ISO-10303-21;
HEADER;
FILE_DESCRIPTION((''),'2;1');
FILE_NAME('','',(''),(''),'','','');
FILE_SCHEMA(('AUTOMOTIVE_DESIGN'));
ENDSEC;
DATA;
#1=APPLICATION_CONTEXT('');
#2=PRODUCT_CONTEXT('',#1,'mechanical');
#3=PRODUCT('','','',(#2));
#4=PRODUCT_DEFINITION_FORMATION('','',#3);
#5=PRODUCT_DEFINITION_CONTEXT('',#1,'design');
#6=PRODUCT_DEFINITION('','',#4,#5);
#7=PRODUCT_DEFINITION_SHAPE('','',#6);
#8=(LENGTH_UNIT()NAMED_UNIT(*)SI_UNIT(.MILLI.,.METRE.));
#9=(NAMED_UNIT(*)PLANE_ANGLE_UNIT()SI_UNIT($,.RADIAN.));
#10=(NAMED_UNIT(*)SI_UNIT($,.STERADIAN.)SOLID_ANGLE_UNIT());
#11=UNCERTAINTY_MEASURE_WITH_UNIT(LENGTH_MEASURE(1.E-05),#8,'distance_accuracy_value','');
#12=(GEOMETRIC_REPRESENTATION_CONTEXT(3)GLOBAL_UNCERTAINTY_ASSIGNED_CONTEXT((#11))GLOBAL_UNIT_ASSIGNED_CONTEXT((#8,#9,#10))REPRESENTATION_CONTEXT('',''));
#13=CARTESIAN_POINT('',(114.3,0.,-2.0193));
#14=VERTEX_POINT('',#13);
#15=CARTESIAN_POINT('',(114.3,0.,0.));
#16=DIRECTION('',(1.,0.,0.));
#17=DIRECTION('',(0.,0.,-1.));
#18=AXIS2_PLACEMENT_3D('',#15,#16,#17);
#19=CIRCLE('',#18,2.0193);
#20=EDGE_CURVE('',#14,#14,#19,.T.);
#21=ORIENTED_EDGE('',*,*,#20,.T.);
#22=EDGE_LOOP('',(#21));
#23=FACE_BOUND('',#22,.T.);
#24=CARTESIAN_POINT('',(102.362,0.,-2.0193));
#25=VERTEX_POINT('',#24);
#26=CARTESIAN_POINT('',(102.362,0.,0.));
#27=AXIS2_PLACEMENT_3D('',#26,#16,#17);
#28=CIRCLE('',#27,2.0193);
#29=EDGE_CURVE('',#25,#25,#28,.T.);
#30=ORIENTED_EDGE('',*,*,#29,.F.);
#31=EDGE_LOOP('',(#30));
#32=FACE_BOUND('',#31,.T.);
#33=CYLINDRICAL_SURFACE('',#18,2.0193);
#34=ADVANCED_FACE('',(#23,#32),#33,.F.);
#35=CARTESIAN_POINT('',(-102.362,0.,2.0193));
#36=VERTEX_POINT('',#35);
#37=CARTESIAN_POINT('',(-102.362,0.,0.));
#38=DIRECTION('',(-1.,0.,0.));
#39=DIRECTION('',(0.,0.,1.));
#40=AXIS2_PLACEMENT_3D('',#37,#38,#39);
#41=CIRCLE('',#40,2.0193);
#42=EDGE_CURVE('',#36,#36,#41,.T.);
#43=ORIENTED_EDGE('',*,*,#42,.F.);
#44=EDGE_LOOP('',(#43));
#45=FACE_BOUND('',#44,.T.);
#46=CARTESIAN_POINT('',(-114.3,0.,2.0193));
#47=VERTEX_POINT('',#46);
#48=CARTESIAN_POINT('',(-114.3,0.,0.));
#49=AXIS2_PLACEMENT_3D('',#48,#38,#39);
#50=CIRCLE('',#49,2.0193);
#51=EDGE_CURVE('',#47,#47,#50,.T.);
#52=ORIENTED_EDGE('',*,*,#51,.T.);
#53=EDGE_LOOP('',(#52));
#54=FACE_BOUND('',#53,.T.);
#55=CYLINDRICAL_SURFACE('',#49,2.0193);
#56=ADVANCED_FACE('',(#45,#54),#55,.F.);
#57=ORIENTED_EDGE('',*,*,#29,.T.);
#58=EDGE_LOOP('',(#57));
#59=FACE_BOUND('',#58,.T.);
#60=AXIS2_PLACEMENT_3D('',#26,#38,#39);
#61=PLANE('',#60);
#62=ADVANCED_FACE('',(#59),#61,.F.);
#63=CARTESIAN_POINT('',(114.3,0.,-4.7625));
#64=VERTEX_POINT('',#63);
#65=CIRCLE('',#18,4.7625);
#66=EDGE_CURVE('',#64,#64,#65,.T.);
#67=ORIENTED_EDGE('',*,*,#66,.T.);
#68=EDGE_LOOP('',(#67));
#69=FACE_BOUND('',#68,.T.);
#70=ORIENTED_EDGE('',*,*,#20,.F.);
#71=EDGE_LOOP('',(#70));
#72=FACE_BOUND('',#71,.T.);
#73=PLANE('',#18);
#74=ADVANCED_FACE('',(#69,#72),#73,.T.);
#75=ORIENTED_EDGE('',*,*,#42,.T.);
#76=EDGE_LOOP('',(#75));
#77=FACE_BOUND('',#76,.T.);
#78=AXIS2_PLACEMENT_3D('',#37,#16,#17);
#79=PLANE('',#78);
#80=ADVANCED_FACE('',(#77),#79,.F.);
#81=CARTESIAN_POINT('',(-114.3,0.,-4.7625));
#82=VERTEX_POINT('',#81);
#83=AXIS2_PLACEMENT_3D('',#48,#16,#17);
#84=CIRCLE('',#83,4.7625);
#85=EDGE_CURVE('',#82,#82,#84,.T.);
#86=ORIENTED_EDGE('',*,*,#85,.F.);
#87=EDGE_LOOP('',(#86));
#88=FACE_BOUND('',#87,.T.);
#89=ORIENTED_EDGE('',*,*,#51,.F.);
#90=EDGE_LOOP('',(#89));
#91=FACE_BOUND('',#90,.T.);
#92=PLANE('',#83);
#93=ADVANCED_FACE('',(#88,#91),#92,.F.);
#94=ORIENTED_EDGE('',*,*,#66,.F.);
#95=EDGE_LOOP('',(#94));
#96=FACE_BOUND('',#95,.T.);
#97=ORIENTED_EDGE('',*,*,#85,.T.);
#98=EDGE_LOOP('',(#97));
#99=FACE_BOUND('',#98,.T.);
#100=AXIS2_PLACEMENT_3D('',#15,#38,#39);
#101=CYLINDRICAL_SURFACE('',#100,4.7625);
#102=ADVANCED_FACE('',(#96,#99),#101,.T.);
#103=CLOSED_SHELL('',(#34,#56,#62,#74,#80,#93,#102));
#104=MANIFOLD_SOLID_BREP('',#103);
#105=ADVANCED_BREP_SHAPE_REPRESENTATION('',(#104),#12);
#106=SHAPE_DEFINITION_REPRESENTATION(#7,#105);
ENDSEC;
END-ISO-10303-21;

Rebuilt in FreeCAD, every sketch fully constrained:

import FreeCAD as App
import Part
import Sketcher

V = App.Vector
Q = App.Units.Quantity

doc = App.newDocument("Part")
body = doc.addObject("PartDesign::Body", "Body")

# Sketch on YZ plane
sketch1 = doc.addObject("Sketcher::SketchObject", "Sketch")
body.addObject(sketch1)
sketch1.AttachmentSupport = (doc.YZ_Plane, [""])
sketch1.MapMode = "FlatFace"
sketch1.addGeometry(Part.Circle(V(0, 0, 0), V(0, 0, 1), 4.7625), False)
sketch1.addConstraint([
    Sketcher.Constraint("Coincident", 0, 3, -1, 1),
    Sketcher.Constraint("Diameter", 0, Q("0.375 in")),
])
pad1 = doc.addObject("PartDesign::Pad", "Pad")
body.addObject(pad1)
pad1.Profile = sketch1
pad1.Length = Q("9 in")
pad1.Midplane = True

# Sketch on YZ plane
sketch2 = doc.addObject("Sketcher::SketchObject", "Sketch001")
body.addObject(sketch2)
sketch2.AttachmentSupport = (doc.YZ_Plane, [""])
sketch2.MapMode = "FlatFace"
sketch2.AttachmentOffset = App.Placement(V(0, 0, -4.5 * 25.4), App.Rotation())
sketch2.addGeometry(Part.Circle(V(0, 0, 0), V(0, 0, 1), 2.0193), False)
sketch2.addConstraint([
    Sketcher.Constraint("Coincident", 0, 3, -1, 1),
    Sketcher.Constraint("Diameter", 0, Q("0.159 in")),
])
doc.recompute()
hole = doc.addObject("PartDesign::Hole", "Hole")
body.addObject(hole)
hole.Profile = sketch2
hole.ThreadType = "None"
hole.Diameter = Q("0.159 in")
hole.DepthType = "Dimension"
hole.Depth = Q("0.47 in")
hole.DrillPoint = "Flat"
hole.Reversed = True
doc.recompute()

mirrored = doc.addObject("PartDesign::Mirrored", "Mirrored")
body.addObject(mirrored)
mirrored.Originals = [hole]
mirrored.MirrorPlane = (doc.YZ_Plane, [""])
body.Tip = mirrored

doc.recompute()
